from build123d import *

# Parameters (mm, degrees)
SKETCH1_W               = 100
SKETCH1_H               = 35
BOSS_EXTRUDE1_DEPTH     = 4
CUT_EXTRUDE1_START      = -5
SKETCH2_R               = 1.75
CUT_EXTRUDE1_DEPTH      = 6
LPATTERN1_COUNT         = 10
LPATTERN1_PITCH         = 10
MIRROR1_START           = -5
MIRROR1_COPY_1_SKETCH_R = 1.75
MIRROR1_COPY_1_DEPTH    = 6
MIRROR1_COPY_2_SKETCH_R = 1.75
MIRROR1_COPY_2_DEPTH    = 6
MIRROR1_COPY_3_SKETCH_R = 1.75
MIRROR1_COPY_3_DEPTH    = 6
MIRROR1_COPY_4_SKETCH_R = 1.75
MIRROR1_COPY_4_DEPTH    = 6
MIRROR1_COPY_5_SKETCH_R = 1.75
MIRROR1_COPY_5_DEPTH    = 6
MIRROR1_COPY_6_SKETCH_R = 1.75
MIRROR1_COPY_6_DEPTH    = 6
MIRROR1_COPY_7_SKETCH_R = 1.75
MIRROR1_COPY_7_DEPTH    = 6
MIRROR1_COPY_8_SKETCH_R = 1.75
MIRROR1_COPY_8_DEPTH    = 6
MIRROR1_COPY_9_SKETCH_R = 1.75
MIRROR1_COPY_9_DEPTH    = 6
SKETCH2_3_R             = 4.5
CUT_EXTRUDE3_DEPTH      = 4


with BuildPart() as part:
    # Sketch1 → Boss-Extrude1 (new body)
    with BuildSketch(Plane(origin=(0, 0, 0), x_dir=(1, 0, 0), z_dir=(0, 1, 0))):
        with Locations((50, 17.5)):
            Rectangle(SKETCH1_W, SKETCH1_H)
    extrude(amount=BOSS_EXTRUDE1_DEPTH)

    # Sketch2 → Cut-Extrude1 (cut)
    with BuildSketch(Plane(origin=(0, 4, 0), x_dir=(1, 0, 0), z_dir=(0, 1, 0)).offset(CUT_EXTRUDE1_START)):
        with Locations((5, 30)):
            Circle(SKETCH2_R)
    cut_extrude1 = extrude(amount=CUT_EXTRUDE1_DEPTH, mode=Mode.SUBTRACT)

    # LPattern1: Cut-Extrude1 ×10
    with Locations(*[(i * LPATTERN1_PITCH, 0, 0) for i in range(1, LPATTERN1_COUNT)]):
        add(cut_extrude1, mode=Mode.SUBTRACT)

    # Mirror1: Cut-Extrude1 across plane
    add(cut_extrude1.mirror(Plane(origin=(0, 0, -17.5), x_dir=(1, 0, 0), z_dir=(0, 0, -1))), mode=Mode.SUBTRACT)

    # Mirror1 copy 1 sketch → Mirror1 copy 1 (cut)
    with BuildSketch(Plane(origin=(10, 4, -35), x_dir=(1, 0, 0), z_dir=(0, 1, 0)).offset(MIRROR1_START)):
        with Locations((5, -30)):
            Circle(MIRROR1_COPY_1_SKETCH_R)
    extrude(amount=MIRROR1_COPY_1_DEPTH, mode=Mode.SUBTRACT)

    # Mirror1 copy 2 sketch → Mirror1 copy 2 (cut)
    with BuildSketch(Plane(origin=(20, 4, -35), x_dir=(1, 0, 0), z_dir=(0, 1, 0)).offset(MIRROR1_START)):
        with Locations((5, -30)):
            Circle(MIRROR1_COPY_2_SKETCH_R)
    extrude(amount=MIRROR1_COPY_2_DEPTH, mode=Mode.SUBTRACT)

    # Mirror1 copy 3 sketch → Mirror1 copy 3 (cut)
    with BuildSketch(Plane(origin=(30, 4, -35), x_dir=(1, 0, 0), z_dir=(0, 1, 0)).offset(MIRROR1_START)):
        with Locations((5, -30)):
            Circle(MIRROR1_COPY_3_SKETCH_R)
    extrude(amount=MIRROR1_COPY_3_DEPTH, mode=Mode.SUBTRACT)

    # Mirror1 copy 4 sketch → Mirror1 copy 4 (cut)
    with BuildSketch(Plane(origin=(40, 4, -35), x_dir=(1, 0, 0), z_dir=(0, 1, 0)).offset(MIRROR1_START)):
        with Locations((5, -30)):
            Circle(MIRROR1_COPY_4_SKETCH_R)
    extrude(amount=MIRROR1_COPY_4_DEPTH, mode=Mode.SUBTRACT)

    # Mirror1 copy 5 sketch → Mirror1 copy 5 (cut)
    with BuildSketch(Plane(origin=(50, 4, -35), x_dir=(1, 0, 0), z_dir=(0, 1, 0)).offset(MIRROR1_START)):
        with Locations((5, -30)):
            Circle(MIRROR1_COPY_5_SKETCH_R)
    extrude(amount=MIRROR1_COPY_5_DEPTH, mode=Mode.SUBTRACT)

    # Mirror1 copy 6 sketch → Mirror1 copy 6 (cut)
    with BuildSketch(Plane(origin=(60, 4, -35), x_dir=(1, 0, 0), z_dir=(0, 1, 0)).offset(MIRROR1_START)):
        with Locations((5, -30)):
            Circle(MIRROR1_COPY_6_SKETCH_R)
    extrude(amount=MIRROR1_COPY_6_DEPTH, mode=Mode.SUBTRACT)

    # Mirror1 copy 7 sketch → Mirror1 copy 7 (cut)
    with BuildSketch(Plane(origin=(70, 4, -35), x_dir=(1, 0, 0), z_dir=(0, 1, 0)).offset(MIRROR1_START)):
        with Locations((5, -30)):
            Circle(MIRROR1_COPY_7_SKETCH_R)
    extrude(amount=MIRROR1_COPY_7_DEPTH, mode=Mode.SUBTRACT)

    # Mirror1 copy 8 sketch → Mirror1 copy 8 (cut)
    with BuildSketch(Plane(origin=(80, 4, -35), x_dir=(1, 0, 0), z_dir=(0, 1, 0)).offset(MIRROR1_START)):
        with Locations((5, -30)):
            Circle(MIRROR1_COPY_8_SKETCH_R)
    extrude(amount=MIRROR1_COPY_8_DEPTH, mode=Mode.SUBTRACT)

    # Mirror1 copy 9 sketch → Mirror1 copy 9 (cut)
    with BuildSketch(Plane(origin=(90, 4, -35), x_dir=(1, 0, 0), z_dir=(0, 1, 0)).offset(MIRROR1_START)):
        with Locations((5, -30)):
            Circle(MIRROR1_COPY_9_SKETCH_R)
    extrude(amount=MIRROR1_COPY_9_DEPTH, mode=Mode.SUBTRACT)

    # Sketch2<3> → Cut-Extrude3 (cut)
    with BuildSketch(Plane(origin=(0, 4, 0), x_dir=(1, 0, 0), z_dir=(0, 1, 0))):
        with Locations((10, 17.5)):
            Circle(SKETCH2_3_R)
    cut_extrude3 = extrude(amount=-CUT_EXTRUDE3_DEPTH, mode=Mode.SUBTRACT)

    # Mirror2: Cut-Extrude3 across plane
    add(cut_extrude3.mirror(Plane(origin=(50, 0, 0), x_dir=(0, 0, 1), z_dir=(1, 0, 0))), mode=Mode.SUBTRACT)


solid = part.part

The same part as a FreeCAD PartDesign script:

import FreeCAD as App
import Part
import Sketcher
from FreeCAD import Vector
Q = App.Units.Quantity

doc = App.newDocument("Part")
params = doc.addObject("Spreadsheet::Sheet", "Params")
for row, (alias, value) in enumerate([
    ("sketch1_width", "100 mm"),
    ("sketch1_height", "35 mm"),
    ("pad1_length", "4 mm"),
    ("sketch2_diameter", "3.5 mm"),
    ("pocket1_length", "6 mm"),
    ("linearpattern_pitch", "10 mm"),
    ("sketch3_diameter", "3.5 mm"),
    ("pocket2_length", "6 mm"),
    ("sketch4_diameter", "3.5 mm"),
    ("pocket3_length", "6 mm"),
    ("sketch5_diameter", "3.5 mm"),
    ("pocket4_length", "6 mm"),
    ("sketch6_diameter", "3.5 mm"),
    ("pocket5_length", "6 mm"),
    ("sketch7_diameter", "3.5 mm"),
    ("pocket6_length", "6 mm"),
    ("sketch8_diameter", "3.5 mm"),
    ("pocket7_length", "6 mm"),
    ("sketch9_diameter", "3.5 mm"),
    ("pocket8_length", "6 mm"),
    ("sketch10_diameter", "3.5 mm"),
    ("pocket9_length", "6 mm"),
    ("sketch11_diameter", "3.5 mm"),
    ("pocket10_length", "6 mm"),
    ("sketch12_diameter", "9 mm"),
    ("pocket11_length", "4 mm"),
], start=1):
    params.set(f"A{row}", alias)
    params.set(f"B{row}", "=" + value)
    params.setAlias(f"B{row}", alias)

body = doc.addObject("PartDesign::Body", "Body")

sketch1 = doc.addObject("Sketcher::SketchObject", "Sketch")
body.addObject(sketch1)
sketch1.AttachmentSupport = (doc.XZ_Plane, [""])
sketch1.MapMode = "FlatFace"
sketch1.addGeometry([
    Part.LineSegment(Vector(0, -35, 0), Vector(0, 0, 0)),
    Part.LineSegment(Vector(0, 0, 0), Vector(100, 0, 0)),
    Part.LineSegment(Vector(100, 0, 0), Vector(100, -35, 0)),
    Part.LineSegment(Vector(100, -35, 0), Vector(0, -35, 0)),
], False)
sketch1.addConstraint([
    Sketcher.Constraint("Coincident", 0, 2, 1, 1),
    Sketcher.Constraint("Coincident", 1, 2, 2, 1),
    Sketcher.Constraint("Coincident", 2, 2, 3, 1),
    Sketcher.Constraint("Coincident", 3, 2, 0, 1),
    Sketcher.Constraint("Vertical", 0),
    Sketcher.Constraint("Horizontal", 1),
    Sketcher.Constraint("Vertical", 2),
    Sketcher.Constraint("Horizontal", 3),
    Sketcher.Constraint("Coincident", 0, 2, -1, 1),
    Sketcher.Constraint("DistanceX", 1, 1, 1, 2, Q("100 mm")),
    Sketcher.Constraint("DistanceY", 0, 1, 0, 2, Q("35 mm")),
])
sketch1.setExpression("Constraints[9]", "Params.sketch1_width")
sketch1.setExpression("Constraints[10]", "Params.sketch1_height")
pad1 = doc.addObject("PartDesign::Pad", "Pad")
body.addObject(pad1)
pad1.Profile = sketch1
pad1.setExpression("Length", "Params.pad1_length")
pad1.Reversed = True

sketch2 = doc.addObject("Sketcher::SketchObject", "Sketch001")
body.addObject(sketch2)
sketch2.AttachmentSupport = (doc.XZ_Plane, [""])
sketch2.MapMode = "FlatFace"
sketch2.AttachmentOffset = App.Placement(Vector(0, 0, 1), App.Rotation())
sketch2.addGeometry(Part.Circle(Vector(5, -30, 0), Vector(0, 0, 1), 1.8), False)
sketch2.addConstraint([
    Sketcher.Constraint("Diameter", 0, Q("3.5 mm")),
    Sketcher.Constraint("DistanceX", -1, 1, 0, 3, Q("5 mm")),
    Sketcher.Constraint("DistanceY", 0, 3, -1, 1, Q("30 mm")),
])
sketch2.setExpression("Constraints[0]", "Params.sketch2_diameter")
pocket1 = doc.addObject("PartDesign::Pocket", "Pocket")
body.addObject(pocket1)
pocket1.Profile = sketch2
pocket1.setExpression("Length", "Params.pocket1_length")
doc.recompute()

linearpattern = doc.addObject("PartDesign::LinearPattern", "LinearPattern")
body.addObject(linearpattern)
linearpattern.Originals = [pocket1]
linearpattern.Direction = (doc.X_Axis, [""])
linearpattern.Mode = "offset"
linearpattern.setExpression("Offset", "Params.linearpattern_pitch")
linearpattern.Occurrences = 10
body.Tip = linearpattern
doc.recompute()

datumplane = doc.addObject("PartDesign::Plane", "DatumPlane")
body.addObject(datumplane)
datumplane.AttachmentSupport = (doc.XY_Plane, [""])
datumplane.MapMode = "FlatFace"
datumplane.AttachmentOffset = App.Placement(Vector(0, 0, -17.5), App.Rotation())
mirrored = doc.addObject("PartDesign::Mirrored", "Mirrored")
body.addObject(mirrored)
mirrored.Originals = [pocket1]
mirrored.MirrorPlane = (datumplane, [""])
body.Tip = mirrored

sketch3 = doc.addObject("Sketcher::SketchObject", "Sketch002")
body.addObject(sketch3)
sketch3.AttachmentSupport = (doc.XZ_Plane, [""])
sketch3.MapMode = "FlatFace"
sketch3.AttachmentOffset = App.Placement(Vector(0, 0, 1), App.Rotation())
sketch3.addGeometry(Part.Circle(Vector(15, -5, 0), Vector(0, 0, 1), 1.8), False)
sketch3.addConstraint([
    Sketcher.Constraint("Diameter", 0, Q("3.5 mm")),
    Sketcher.Constraint("DistanceX", -1, 1, 0, 3, Q("15 mm")),
    Sketcher.Constraint("DistanceY", 0, 3, -1, 1, Q("5 mm")),
])
sketch3.setExpression("Constraints[0]", "Params.sketch3_diameter")
pocket2 = doc.addObject("PartDesign::Pocket", "Pocket001")
body.addObject(pocket2)
pocket2.Profile = sketch3
pocket2.setExpression("Length", "Params.pocket2_length")

sketch4 = doc.addObject("Sketcher::SketchObject", "Sketch003")
body.addObject(sketch4)
sketch4.AttachmentSupport = (doc.XZ_Plane, [""])
sketch4.MapMode = "FlatFace"
sketch4.AttachmentOffset = App.Placement(Vector(0, 0, 1), App.Rotation())
sketch4.addGeometry(Part.Circle(Vector(25, -5, 0), Vector(0, 0, 1), 1.8), False)
sketch4.addConstraint([
    Sketcher.Constraint("Diameter", 0, Q("3.5 mm")),
    Sketcher.Constraint("DistanceX", -1, 1, 0, 3, Q("25 mm")),
    Sketcher.Constraint("DistanceY", 0, 3, -1, 1, Q("5 mm")),
])
sketch4.setExpression("Constraints[0]", "Params.sketch4_diameter")
pocket3 = doc.addObject("PartDesign::Pocket", "Pocket002")
body.addObject(pocket3)
pocket3.Profile = sketch4
pocket3.setExpression("Length", "Params.pocket3_length")

sketch5 = doc.addObject("Sketcher::SketchObject", "Sketch004")
body.addObject(sketch5)
sketch5.AttachmentSupport = (doc.XZ_Plane, [""])
sketch5.MapMode = "FlatFace"
sketch5.AttachmentOffset = App.Placement(Vector(0, 0, 1), App.Rotation())
sketch5.addGeometry(Part.Circle(Vector(35, -5, 0), Vector(0, 0, 1), 1.8), False)
sketch5.addConstraint([
    Sketcher.Constraint("Diameter", 0, Q("3.5 mm")),
    Sketcher.Constraint("DistanceX", -1, 1, 0, 3, Q("35 mm")),
    Sketcher.Constraint("DistanceY", 0, 3, -1, 1, Q("5 mm")),
])
sketch5.setExpression("Constraints[0]", "Params.sketch5_diameter")
pocket4 = doc.addObject("PartDesign::Pocket", "Pocket003")
body.addObject(pocket4)
pocket4.Profile = sketch5
pocket4.setExpression("Length", "Params.pocket4_length")

sketch6 = doc.addObject("Sketcher::SketchObject", "Sketch005")
body.addObject(sketch6)
sketch6.AttachmentSupport = (doc.XZ_Plane, [""])
sketch6.MapMode = "FlatFace"
sketch6.AttachmentOffset = App.Placement(Vector(0, 0, 1), App.Rotation())
sketch6.addGeometry(Part.Circle(Vector(45, -5, 0), Vector(0, 0, 1), 1.8), False)
sketch6.addConstraint([
    Sketcher.Constraint("Diameter", 0, Q("3.5 mm")),
    Sketcher.Constraint("DistanceX", -1, 1, 0, 3, Q("45 mm")),
    Sketcher.Constraint("DistanceY", 0, 3, -1, 1, Q("5 mm")),
])
sketch6.setExpression("Constraints[0]", "Params.sketch6_diameter")
pocket5 = doc.addObject("PartDesign::Pocket", "Pocket004")
body.addObject(pocket5)
pocket5.Profile = sketch6
pocket5.setExpression("Length", "Params.pocket5_length")

sketch7 = doc.addObject("Sketcher::SketchObject", "Sketch006")
body.addObject(sketch7)
sketch7.AttachmentSupport = (doc.XZ_Plane, [""])
sketch7.MapMode = "FlatFace"
sketch7.AttachmentOffset = App.Placement(Vector(0, 0, 1), App.Rotation())
sketch7.addGeometry(Part.Circle(Vector(55, -5, 0), Vector(0, 0, 1), 1.8), False)
sketch7.addConstraint([
    Sketcher.Constraint("Diameter", 0, Q("3.5 mm")),
    Sketcher.Constraint("DistanceX", -1, 1, 0, 3, Q("55 mm")),
    Sketcher.Constraint("DistanceY", 0, 3, -1, 1, Q("5 mm")),
])
sketch7.setExpression("Constraints[0]", "Params.sketch7_diameter")
pocket6 = doc.addObject("PartDesign::Pocket", "Pocket005")
body.addObject(pocket6)
pocket6.Profile = sketch7
pocket6.setExpression("Length", "Params.pocket6_length")

sketch8 = doc.addObject("Sketcher::SketchObject", "Sketch007")
body.addObject(sketch8)
sketch8.AttachmentSupport = (doc.XZ_Plane, [""])
sketch8.MapMode = "FlatFace"
sketch8.AttachmentOffset = App.Placement(Vector(0, 0, 1), App.Rotation())
sketch8.addGeometry(Part.Circle(Vector(65, -5, 0), Vector(0, 0, 1), 1.8), False)
sketch8.addConstraint([
    Sketcher.Constraint("Diameter", 0, Q("3.5 mm")),
    Sketcher.Constraint("DistanceX", -1, 1, 0, 3, Q("65 mm")),
    Sketcher.Constraint("DistanceY", 0, 3, -1, 1, Q("5 mm")),
])
sketch8.setExpression("Constraints[0]", "Params.sketch8_diameter")
pocket7 = doc.addObject("PartDesign::Pocket", "Pocket006")
body.addObject(pocket7)
pocket7.Profile = sketch8
pocket7.setExpression("Length", "Params.pocket7_length")

sketch9 = doc.addObject("Sketcher::SketchObject", "Sketch008")
body.addObject(sketch9)
sketch9.AttachmentSupport = (doc.XZ_Plane, [""])
sketch9.MapMode = "FlatFace"
sketch9.AttachmentOffset = App.Placement(Vector(0, 0, 1), App.Rotation())
sketch9.addGeometry(Part.Circle(Vector(75, -5, 0), Vector(0, 0, 1), 1.8), False)
sketch9.addConstraint([
    Sketcher.Constraint("Diameter", 0, Q("3.5 mm")),
    Sketcher.Constraint("DistanceX", -1, 1, 0, 3, Q("75 mm")),
    Sketcher.Constraint("DistanceY", 0, 3, -1, 1, Q("5 mm")),
])
sketch9.setExpression("Constraints[0]", "Params.sketch9_diameter")
pocket8 = doc.addObject("PartDesign::Pocket", "Pocket007")
body.addObject(pocket8)
pocket8.Profile = sketch9
pocket8.setExpression("Length", "Params.pocket8_length")

sketch10 = doc.addObject("Sketcher::SketchObject", "Sketch009")
body.addObject(sketch10)
sketch10.AttachmentSupport = (doc.XZ_Plane, [""])
sketch10.MapMode = "FlatFace"
sketch10.AttachmentOffset = App.Placement(Vector(0, 0, 1), App.Rotation())
sketch10.addGeometry(Part.Circle(Vector(85, -5, 0), Vector(0, 0, 1), 1.8), False)
sketch10.addConstraint([
    Sketcher.Constraint("Diameter", 0, Q("3.5 mm")),
    Sketcher.Constraint("DistanceX", -1, 1, 0, 3, Q("85 mm")),
    Sketcher.Constraint("DistanceY", 0, 3, -1, 1, Q("5 mm")),
])
sketch10.setExpression("Constraints[0]", "Params.sketch10_diameter")
pocket9 = doc.addObject("PartDesign::Pocket", "Pocket008")
body.addObject(pocket9)
pocket9.Profile = sketch10
pocket9.setExpression("Length", "Params.pocket9_length")

sketch11 = doc.addObject("Sketcher::SketchObject", "Sketch010")
body.addObject(sketch11)
sketch11.AttachmentSupport = (doc.XZ_Plane, [""])
sketch11.MapMode = "FlatFace"
sketch11.AttachmentOffset = App.Placement(Vector(0, 0, 1), App.Rotation())
sketch11.addGeometry(Part.Circle(Vector(95, -5, 0), Vector(0, 0, 1), 1.8), False)
sketch11.addConstraint([
    Sketcher.Constraint("Diameter", 0, Q("3.5 mm")),
    Sketcher.Constraint("DistanceX", -1, 1, 0, 3, Q("95 mm")),
    Sketcher.Constraint("DistanceY", 0, 3, -1, 1, Q("5 mm")),
])
sketch11.setExpression("Constraints[0]", "Params.sketch11_diameter")
pocket10 = doc.addObject("PartDesign::Pocket", "Pocket009")
body.addObject(pocket10)
pocket10.Profile = sketch11
pocket10.setExpression("Length", "Params.pocket10_length")

sketch12 = doc.addObject("Sketcher::SketchObject", "Sketch011")
body.addObject(sketch12)
sketch12.AttachmentSupport = (doc.XZ_Plane, [""])
sketch12.MapMode = "FlatFace"
sketch12.AttachmentOffset = App.Placement(Vector(0, 0, -4), App.Rotation())
sketch12.addGeometry(Part.Circle(Vector(10, -17.5, 0), Vector(0, 0, 1), 4.5), False)
sketch12.addConstraint([
    Sketcher.Constraint("Diameter", 0, Q("9 mm")),
    Sketcher.Constraint("DistanceX", -1, 1, 0, 3, Q("10 mm")),
    Sketcher.Constraint("DistanceY", 0, 3, -1, 1, Q("17.5 mm")),
])
sketch12.setExpression("Constraints[0]", "Params.sketch12_diameter")
pocket11 = doc.addObject("PartDesign::Pocket", "Pocket010")
body.addObject(pocket11)
pocket11.Profile = sketch12
pocket11.setExpression("Length", "Params.pocket11_length")
pocket11.Reversed = True
doc.recompute()

datumplane2 = doc.addObject("PartDesign::Plane", "DatumPlane001")
body.addObject(datumplane2)
datumplane2.AttachmentSupport = (doc.YZ_Plane, [""])
datumplane2.MapMode = "FlatFace"
datumplane2.AttachmentOffset = App.Placement(Vector(0, 0, 50), App.Rotation())
mirrored2 = doc.addObject("PartDesign::Mirrored", "Mirrored001")
body.addObject(mirrored2)
mirrored2.Originals = [pocket11]
mirrored2.MirrorPlane = (datumplane2, [""])
body.Tip = mirrored2

doc.recompute()
